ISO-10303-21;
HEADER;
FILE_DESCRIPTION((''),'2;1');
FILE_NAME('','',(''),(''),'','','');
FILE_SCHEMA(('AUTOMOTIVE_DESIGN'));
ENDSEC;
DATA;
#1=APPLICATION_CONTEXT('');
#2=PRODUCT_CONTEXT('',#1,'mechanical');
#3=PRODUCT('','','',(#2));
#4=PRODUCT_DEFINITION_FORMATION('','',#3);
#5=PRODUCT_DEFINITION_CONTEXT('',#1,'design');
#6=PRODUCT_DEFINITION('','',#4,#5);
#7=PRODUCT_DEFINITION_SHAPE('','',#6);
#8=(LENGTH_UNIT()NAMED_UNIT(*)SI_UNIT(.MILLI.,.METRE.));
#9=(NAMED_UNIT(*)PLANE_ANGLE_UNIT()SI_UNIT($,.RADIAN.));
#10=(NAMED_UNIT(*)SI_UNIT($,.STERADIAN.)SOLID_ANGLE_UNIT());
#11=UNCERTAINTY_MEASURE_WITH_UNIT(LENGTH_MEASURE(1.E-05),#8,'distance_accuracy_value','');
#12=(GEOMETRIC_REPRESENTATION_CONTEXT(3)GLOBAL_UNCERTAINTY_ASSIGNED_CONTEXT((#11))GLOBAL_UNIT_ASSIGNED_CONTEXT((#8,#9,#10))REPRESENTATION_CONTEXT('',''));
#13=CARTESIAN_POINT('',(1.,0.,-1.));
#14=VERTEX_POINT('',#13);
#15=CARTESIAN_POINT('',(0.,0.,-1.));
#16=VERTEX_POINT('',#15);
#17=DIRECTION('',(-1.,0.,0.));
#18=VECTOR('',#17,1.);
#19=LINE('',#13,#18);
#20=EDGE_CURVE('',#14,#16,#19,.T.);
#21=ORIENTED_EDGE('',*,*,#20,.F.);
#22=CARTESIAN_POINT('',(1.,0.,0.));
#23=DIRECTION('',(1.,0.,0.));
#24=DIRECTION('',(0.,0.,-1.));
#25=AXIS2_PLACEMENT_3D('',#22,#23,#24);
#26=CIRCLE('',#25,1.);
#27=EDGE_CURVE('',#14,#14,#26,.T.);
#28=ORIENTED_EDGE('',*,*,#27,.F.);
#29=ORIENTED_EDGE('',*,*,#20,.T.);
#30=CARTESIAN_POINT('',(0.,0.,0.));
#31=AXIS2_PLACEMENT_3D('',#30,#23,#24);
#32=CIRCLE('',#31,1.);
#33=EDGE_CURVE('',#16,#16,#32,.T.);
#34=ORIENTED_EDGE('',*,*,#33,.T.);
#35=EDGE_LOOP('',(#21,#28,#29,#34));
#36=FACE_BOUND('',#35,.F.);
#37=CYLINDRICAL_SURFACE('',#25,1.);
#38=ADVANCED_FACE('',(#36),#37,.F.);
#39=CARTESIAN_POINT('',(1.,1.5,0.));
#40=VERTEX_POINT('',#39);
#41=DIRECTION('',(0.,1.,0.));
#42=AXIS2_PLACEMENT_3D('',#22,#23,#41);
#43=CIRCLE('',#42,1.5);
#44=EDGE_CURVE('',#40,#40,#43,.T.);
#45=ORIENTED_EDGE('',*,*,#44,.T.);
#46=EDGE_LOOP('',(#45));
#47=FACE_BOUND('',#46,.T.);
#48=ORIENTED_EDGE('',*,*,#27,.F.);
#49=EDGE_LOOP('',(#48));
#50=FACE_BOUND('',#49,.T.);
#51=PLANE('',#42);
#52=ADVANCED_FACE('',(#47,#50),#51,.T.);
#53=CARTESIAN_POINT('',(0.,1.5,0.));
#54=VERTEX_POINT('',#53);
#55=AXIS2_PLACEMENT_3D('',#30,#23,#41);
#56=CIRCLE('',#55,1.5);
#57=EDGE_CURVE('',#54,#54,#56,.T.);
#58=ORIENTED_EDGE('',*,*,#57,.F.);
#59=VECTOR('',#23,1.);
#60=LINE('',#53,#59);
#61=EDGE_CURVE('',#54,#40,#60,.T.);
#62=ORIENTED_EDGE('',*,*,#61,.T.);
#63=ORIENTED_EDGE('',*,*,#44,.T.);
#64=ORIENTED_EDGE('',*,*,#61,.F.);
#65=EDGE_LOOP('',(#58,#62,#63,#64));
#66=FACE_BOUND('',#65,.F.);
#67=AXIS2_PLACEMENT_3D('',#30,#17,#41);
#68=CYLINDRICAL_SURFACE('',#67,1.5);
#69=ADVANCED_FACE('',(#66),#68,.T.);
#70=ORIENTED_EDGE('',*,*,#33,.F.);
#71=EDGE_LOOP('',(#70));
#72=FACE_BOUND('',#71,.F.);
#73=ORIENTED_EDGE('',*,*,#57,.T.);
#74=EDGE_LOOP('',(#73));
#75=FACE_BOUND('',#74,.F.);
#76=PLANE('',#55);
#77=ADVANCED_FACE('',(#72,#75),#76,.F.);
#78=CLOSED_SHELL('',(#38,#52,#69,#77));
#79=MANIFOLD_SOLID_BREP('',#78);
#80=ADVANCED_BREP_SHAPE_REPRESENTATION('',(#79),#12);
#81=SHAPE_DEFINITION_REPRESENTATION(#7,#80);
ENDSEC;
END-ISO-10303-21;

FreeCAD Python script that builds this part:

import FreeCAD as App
import Part
import Sketcher
Q = App.Units.Quantity

doc = App.newDocument("Part")
params = doc.addObject("Spreadsheet::Sheet", "Params")
for row, (alias, value) in enumerate([
    ("sketch1_diameter", "3 mm"),
    ("pad1_length", "1 mm"),
    ("sketch2_diameter", "2 mm"),
    ("pocket1_length", "1 mm"),
], start=1):
    params.set(f"A{row}", alias)
    params.set(f"B{row}", "=" + value)
    params.setAlias(f"B{row}", alias)

body = doc.addObject("PartDesign::Body", "Body")

# Sketch on YZ plane
sketch1 = body.newObject("Sketcher::SketchObject", "Sketch")
sketch1.AttachmentSupport = (doc.getObject("YZ_Plane"), [""])
sketch1.MapMode = "FlatFace"
sketch1.addGeometry(Part.Circle(App.Vector(0, 0, 0), App.Vector(0, 0, 1), 1.5), False)
sketch1.addConstraint(Sketcher.Constraint("Coincident", 0, 3, -1, 1))
sketch1.addConstraint(Sketcher.Constraint("Diameter", 0, Q("3 mm")))
sketch1.setExpression("Constraints[1]", "Params.sketch1_diameter")
pad1 = body.newObject("PartDesign::Pad", "Pad")
pad1.Profile = sketch1
pad1.setExpression("Length", "Params.pad1_length")

# Sketch on YZ plane
sketch2 = body.newObject("Sketcher::SketchObject", "Sketch001")
sketch2.AttachmentSupport = (doc.getObject("YZ_Plane"), [""])
sketch2.MapMode = "FlatFace"
sketch2.AttachmentOffset = App.Placement(App.Vector(0, 0, 1), App.Rotation())
sketch2.addGeometry(Part.Circle(App.Vector(0, 0, 0), App.Vector(0, 0, 1), 1), False)
sketch2.addConstraint(Sketcher.Constraint("Coincident", 0, 3, -1, 1))
sketch2.addConstraint(Sketcher.Constraint("Diameter", 0, Q("2 mm")))
sketch2.setExpression("Constraints[1]", "Params.sketch2_diameter")
pocket1 = body.newObject("PartDesign::Pocket", "Pocket")
pocket1.Profile = sketch2
pocket1.setExpression("Length", "Params.pocket1_length")

doc.recompute()
